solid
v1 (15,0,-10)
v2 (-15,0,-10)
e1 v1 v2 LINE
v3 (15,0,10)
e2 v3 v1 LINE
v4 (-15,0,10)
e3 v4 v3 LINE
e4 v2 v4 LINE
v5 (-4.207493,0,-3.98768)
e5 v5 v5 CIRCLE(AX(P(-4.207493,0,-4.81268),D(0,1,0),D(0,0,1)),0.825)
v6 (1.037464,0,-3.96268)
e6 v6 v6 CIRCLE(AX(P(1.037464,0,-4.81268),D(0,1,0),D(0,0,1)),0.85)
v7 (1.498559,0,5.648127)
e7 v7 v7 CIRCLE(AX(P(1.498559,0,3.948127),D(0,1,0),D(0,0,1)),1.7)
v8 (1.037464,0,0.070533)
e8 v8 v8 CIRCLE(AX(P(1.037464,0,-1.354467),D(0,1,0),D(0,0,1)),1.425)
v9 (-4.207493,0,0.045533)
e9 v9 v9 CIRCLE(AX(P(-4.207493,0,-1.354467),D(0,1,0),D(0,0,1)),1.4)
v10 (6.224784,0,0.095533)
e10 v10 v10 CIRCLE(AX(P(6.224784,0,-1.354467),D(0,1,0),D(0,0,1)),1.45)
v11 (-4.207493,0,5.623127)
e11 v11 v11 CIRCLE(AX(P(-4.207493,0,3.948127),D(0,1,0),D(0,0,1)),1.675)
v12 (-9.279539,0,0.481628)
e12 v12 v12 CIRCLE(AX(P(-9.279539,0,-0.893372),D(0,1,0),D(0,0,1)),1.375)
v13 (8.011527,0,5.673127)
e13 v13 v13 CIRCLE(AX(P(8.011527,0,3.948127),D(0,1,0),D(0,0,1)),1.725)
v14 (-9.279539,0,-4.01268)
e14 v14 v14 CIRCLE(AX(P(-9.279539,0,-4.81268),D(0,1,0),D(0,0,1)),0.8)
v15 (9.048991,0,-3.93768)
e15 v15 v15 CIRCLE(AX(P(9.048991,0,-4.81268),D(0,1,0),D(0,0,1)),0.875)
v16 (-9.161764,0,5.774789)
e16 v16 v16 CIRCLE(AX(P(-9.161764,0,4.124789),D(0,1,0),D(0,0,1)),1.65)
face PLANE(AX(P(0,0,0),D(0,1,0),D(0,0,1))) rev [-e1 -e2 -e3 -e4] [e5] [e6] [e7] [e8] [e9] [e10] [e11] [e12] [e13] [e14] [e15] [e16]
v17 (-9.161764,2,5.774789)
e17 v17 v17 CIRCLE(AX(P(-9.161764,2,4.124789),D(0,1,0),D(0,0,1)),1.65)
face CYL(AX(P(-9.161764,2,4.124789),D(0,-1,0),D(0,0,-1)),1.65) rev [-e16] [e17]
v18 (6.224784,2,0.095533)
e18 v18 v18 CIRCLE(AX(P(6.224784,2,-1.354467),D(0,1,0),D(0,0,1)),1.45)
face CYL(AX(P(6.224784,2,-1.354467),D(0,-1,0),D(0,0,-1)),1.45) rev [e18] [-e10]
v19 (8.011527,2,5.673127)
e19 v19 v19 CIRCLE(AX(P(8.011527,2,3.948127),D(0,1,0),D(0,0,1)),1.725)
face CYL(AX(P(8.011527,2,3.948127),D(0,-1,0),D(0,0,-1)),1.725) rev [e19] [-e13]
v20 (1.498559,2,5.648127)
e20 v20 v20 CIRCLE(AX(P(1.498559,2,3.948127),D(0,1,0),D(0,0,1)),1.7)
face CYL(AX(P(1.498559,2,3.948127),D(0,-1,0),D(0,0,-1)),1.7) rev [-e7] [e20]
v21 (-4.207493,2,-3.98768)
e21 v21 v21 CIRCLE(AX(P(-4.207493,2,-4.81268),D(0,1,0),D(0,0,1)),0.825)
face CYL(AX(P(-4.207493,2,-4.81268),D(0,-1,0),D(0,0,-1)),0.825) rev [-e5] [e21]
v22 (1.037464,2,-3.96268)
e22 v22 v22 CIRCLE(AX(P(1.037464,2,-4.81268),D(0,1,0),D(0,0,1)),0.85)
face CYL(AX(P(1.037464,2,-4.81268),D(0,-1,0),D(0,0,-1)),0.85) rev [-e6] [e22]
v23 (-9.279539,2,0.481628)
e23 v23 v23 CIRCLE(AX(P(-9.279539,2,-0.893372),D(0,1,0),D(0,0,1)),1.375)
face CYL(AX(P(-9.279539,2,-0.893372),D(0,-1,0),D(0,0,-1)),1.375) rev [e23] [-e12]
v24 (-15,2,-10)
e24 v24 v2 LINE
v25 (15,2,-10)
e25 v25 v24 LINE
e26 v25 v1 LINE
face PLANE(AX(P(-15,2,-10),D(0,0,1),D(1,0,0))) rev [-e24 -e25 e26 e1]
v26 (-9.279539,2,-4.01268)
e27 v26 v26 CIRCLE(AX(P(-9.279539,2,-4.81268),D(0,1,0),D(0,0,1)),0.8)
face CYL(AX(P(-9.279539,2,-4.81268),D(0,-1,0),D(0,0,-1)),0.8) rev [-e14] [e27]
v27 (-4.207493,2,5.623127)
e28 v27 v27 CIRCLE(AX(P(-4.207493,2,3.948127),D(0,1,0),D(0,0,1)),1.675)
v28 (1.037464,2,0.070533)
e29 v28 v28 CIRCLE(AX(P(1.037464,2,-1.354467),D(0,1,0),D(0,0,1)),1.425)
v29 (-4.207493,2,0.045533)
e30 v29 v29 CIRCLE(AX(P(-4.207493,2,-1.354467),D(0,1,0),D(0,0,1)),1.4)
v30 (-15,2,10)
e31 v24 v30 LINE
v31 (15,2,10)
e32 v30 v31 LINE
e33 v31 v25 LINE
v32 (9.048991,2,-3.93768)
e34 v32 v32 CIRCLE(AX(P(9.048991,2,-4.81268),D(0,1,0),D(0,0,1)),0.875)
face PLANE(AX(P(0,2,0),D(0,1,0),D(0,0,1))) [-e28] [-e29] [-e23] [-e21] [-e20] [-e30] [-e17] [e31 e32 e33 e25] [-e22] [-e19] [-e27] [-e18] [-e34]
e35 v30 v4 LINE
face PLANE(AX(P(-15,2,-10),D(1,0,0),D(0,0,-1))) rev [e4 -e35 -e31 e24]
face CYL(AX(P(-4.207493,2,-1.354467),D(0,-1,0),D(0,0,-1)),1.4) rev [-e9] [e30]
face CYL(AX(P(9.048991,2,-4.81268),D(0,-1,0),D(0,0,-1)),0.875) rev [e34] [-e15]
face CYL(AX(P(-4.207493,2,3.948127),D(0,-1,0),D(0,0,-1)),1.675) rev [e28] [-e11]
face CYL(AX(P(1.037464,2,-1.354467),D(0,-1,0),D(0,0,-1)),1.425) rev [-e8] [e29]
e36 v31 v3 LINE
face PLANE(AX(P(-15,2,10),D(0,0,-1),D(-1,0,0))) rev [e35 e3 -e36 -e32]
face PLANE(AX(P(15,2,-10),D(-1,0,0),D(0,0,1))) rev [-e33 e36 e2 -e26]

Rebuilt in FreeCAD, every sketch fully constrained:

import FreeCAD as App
import Part
import Sketcher

V = App.Vector


def add_polygon(sketch, points):
    """Adds a closed chain of lines whose ends are joined by coincident constraints."""
    first, n = sketch.GeometryCount, len(points)
    for a, b in zip(points, points[1:] + points[:1]):
        sketch.addGeometry(Part.LineSegment(App.Vector(*a, 0), App.Vector(*b, 0)), False)
    for i in range(n):
        sketch.addConstraint(Sketcher.Constraint("Coincident", first + i, 2, first + (i + 1) % n, 1))

doc = App.newDocument("Part")
params = doc.addObject("Spreadsheet::Sheet", "Params")
for row, (alias, value) in enumerate([
    ("sketch1_diameter", "3.3 mm"),
    ("sketch1_diameter2", "3.4 mm"),
    ("sketch1_diameter3", "2.8 mm"),
    ("sketch1_diameter4", "1.6 mm"),
    ("sketch1_diameter5", "2.9 mm"),
    ("pad1_length", "2 mm"),
], start=1):
    params.set(f"A{row}", alias)
    params.set(f"B{row}", "=" + value)
    params.setAlias(f"B{row}", alias)

body = doc.addObject("PartDesign::Body", "Body")

# Sketch on XZ plane
sketch1 = body.newObject("Sketcher::SketchObject", "Sketch")
sketch1.AttachmentSupport = (doc.getObject("XZ_Plane"), [""])
sketch1.MapMode = "FlatFace"
add_polygon(sketch1, [(-15, -10), (-15, 10), (15, 10), (15, -10)])  # lines 0-3
sketch1.addGeometry(Part.Circle(V(-9.2, 4.1, 0), V(0, 0, 1), 1.6), False)  # 4
sketch1.addGeometry(Part.Circle(V(-4.2, 3.9, 0), V(0, 0, 1), 1.7), False)  # 5
sketch1.addGeometry(Part.Circle(V(1.5, 3.9, 0), V(0, 0, 1), 1.7), False)  # 6
sketch1.addGeometry(Part.Circle(V(8, 3.9, 0), V(0, 0, 1), 1.7), False)  # 7
sketch1.addGeometry(Part.Circle(V(-9.3, -0.9, 0), V(0, 0, 1), 1.4), False)  # 8
sketch1.addGeometry(Part.Circle(V(-4.2, -1.4, 0), V(0, 0, 1), 1.4), False)  # 9
sketch1.addGeometry(Part.Circle(V(-9.3, -4.8, 0), V(0, 0, 1), 0.8), False)  # 10
sketch1.addGeometry(Part.Circle(V(-4.2, -4.8, 0), V(0, 0, 1), 0.8), False)  # 11
sketch1.addGeometry(Part.Circle(V(1, -1.4, 0), V(0, 0, 1), 1.4), False)  # 12
sketch1.addGeometry(Part.Circle(V(6.2, -1.4, 0), V(0, 0, 1), 1.4), False)  # 13
sketch1.addGeometry(Part.Circle(V(1, -4.8, 0), V(0, 0, 1), 0.8), False)  # 14
sketch1.addGeometry(Part.Circle(V(9, -4.8, 0), V(0, 0, 1), 0.9), False)  # 15
sketch1.addConstraint([
    Sketcher.Constraint("Vertical", 0),
    Sketcher.Constraint("Horizontal", 1),
    Sketcher.Constraint("Vertical", 2),
    Sketcher.Constraint("Horizontal", 3),
    Sketcher.Constraint("Symmetric", 0, 2, 2, 2, -1, 1),
    Sketcher.Constraint("Horizontal", 5, 3, 6, 3),
    Sketcher.Constraint("Horizontal", 6, 3, 7, 3),
    Sketcher.Constraint("Horizontal", 10, 3, 11, 3),
    Sketcher.Constraint("Horizontal", 9, 3, 12, 3),
    Sketcher.Constraint("Horizontal", 12, 3, 13, 3),
    Sketcher.Constraint("Horizontal", 11, 3, 14, 3),
    Sketcher.Constraint("Horizontal", 14, 3, 15, 3),
    Sketcher.Constraint("Vertical", 5, 3, 9, 3),
    Sketcher.Constraint("Vertical", 8, 3, 10, 3),
    Sketcher.Constraint("Vertical", 9, 3, 11, 3),
    Sketcher.Constraint("Vertical", 12, 3, 14, 3),
    Sketcher.Constraint("Diameter", 4, 3.3),
    Sketcher.Constraint("Diameter", 6, 3.4),
    Sketcher.Constraint("Diameter", 9, 2.8),
    Sketcher.Constraint("Diameter", 10, 1.6),
    Sketcher.Constraint("Diameter", 13, 2.9),
    Sketcher.Constraint("Diameter", 14, 1.7),
    Sketcher.Constraint("Diameter", 5, 3.35),
    Sketcher.Constraint("Diameter", 7, 3.45),
    Sketcher.Constraint("Diameter", 8, 2.75),
    Sketcher.Constraint("Diameter", 11, 1.65),
    Sketcher.Constraint("Diameter", 12, 2.85),
    Sketcher.Constraint("Diameter", 15, 1.75),
    Sketcher.Constraint("DistanceX", 1, 1, 1, 2, 30.0),
    Sketcher.Constraint("DistanceY", 0, 1, 0, 2, 20.0),
    Sketcher.Constraint("DistanceY", 8, 3, 5, 3, 4.841499),
    Sketcher.Constraint("DistanceY", -1, 1, 4, 3, 4.124789),
    Sketcher.Constraint("DistanceX", -1, 1, 6, 3, 1.498559),
    Sketcher.Constraint("DistanceX", 8, 3, -1, 1, 9.279539),
    Sketcher.Constraint("DistanceY", 8, 3, -1, 1, 0.893372),
    Sketcher.Constraint("DistanceY", 10, 3, -1, 1, 4.81268),
    Sketcher.Constraint("DistanceX", -1, 1, 15, 3, 9.048991),
    Sketcher.Constraint("DistanceX", 4, 3, 5, 3, 4.954271),
    Sketcher.Constraint("DistanceX", 5, 3, 6, 3, 5.706052),
    Sketcher.Constraint("DistanceX", 6, 3, 7, 3, 6.512968),
    Sketcher.Constraint("DistanceX", 12, 3, 13, 3, 5.18732),
    Sketcher.Constraint("DistanceY", 9, 3, -1, 1, 1.354467),
    Sketcher.Constraint("DistanceX", -1, 1, 12, 3, 1.037464),
])
sketch1.setExpression("Constraints[20]", "Params.sketch1_diameter")
sketch1.setExpression("Constraints[21]", "Params.sketch1_diameter2")
sketch1.setExpression("Constraints[22]", "Params.sketch1_diameter3")
sketch1.setExpression("Constraints[23]", "Params.sketch1_diameter4")
sketch1.setExpression("Constraints[24]", "Params.sketch1_diameter5")
pad1 = body.newObject("PartDesign::Pad", "Pad")
pad1.Profile = sketch1
pad1.setExpression("Length", "Params.pad1_length")
pad1.Reversed = True

doc.recompute()
